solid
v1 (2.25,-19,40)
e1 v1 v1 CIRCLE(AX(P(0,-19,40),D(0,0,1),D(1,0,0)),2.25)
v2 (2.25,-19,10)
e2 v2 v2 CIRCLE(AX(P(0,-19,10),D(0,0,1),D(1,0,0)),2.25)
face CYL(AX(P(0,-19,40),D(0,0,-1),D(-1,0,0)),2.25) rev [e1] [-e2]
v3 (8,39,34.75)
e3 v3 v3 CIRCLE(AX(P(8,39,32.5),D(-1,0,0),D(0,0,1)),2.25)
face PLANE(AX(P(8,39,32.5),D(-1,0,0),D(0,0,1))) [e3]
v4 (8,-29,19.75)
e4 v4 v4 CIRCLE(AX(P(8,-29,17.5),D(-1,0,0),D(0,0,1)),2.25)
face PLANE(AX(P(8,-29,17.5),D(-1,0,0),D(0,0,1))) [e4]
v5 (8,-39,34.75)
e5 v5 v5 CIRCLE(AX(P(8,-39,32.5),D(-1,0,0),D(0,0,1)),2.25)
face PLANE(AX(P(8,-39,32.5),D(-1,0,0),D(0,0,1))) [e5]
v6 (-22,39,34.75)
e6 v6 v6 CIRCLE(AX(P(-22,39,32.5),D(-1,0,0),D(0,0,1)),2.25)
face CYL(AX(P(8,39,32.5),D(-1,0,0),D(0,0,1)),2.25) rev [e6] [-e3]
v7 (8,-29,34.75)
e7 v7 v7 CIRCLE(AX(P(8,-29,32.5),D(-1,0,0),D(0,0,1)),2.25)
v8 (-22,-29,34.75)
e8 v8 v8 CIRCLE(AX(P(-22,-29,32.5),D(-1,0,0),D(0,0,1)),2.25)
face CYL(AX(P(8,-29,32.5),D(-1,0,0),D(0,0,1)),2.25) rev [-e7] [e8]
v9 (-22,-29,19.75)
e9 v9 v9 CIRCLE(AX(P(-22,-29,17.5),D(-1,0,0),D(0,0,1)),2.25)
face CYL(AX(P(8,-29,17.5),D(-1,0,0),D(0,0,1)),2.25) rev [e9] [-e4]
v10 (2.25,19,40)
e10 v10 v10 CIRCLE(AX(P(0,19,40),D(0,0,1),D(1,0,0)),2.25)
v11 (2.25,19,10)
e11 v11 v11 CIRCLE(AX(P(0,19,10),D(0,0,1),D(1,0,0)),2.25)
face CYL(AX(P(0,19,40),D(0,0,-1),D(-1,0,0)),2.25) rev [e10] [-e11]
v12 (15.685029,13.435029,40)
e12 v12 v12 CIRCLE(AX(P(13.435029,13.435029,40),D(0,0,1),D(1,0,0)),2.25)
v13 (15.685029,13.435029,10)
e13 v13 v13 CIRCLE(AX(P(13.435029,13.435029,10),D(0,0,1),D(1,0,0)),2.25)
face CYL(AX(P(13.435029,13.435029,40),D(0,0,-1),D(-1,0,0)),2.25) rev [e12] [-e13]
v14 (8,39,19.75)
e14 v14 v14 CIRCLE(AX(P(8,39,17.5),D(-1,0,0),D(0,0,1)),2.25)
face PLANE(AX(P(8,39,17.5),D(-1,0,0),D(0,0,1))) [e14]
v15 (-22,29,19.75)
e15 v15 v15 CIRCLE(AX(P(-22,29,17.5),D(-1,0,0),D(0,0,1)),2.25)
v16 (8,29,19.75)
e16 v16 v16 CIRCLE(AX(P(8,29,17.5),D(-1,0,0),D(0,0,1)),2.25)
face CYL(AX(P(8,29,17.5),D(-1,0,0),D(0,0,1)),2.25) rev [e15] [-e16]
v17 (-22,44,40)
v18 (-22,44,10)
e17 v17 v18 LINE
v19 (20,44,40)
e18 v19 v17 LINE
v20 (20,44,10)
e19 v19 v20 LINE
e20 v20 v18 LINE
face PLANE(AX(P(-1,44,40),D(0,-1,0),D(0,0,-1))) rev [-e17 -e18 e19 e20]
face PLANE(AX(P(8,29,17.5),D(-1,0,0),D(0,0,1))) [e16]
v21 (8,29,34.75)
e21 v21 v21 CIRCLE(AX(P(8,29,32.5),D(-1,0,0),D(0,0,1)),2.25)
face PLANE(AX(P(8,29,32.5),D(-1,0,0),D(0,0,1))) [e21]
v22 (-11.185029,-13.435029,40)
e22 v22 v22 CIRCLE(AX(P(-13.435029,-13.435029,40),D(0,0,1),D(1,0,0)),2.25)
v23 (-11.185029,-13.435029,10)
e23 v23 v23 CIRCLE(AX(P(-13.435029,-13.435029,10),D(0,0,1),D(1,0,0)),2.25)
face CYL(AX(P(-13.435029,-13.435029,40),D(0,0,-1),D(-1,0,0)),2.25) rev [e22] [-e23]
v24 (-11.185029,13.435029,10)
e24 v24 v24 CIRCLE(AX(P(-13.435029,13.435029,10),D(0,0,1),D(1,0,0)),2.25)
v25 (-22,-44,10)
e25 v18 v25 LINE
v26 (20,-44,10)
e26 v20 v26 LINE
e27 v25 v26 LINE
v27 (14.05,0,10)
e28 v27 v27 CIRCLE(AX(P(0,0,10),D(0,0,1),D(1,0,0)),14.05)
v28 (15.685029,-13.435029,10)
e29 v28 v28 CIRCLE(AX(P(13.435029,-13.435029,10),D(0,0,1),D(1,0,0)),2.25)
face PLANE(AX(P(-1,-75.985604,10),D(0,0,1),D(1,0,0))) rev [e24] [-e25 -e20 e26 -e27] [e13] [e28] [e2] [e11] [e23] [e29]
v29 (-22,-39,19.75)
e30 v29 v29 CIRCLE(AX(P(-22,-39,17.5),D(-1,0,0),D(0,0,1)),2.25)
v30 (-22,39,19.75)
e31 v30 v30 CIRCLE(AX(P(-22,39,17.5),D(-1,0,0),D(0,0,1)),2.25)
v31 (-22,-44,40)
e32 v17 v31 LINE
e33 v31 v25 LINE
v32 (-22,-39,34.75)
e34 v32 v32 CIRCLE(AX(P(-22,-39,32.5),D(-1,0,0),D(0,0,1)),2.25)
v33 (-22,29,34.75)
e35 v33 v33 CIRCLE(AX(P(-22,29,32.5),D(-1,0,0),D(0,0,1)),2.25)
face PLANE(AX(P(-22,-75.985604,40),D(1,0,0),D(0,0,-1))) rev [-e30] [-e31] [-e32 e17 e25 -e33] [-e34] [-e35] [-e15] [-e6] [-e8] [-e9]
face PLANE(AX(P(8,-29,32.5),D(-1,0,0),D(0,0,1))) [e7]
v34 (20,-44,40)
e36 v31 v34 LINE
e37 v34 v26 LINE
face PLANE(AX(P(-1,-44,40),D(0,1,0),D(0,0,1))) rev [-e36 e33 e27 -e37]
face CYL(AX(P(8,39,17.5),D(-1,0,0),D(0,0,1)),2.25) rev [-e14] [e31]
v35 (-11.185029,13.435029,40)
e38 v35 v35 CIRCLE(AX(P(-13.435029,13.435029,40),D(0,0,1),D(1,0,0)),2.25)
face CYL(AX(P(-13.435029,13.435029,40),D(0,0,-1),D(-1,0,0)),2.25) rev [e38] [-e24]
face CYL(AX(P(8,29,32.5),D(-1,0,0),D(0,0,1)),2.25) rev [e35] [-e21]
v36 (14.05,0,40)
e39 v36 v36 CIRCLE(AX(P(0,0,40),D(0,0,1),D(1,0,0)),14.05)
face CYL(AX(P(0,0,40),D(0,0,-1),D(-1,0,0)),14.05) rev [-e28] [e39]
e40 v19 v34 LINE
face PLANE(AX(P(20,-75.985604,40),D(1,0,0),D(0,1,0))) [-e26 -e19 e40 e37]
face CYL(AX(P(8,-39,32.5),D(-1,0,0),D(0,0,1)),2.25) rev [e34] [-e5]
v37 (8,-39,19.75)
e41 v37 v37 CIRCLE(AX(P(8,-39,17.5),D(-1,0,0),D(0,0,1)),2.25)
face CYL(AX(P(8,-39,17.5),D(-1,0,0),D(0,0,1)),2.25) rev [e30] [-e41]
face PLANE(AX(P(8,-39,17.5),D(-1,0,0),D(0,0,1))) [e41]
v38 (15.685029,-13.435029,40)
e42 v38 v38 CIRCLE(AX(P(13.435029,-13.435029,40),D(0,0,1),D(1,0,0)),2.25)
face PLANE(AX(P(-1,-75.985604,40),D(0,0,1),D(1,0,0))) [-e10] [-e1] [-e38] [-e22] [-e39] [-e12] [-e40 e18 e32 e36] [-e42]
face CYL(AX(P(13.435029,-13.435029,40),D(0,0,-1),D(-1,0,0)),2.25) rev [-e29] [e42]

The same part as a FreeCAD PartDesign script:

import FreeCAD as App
import Part
import Sketcher
from FreeCAD import Vector
Q = App.Units.Quantity


def add_polygon(sketch, points):
    """Adds a closed chain of lines whose ends are joined by coincident constraints."""
    first, n = sketch.GeometryCount, len(points)
    for a, b in zip(points, points[1:] + points[:1]):
        sketch.addGeometry(Part.LineSegment(App.Vector(*a, 0), App.Vector(*b, 0)), False)
    for i in range(n):
        sketch.addConstraint(Sketcher.Constraint("Coincident", first + i, 2, first + (i + 1) % n, 1))

doc = App.newDocument("Part")
body = doc.addObject("PartDesign::Body", "Body")

# Sketch on XY plane
sketch1 = doc.addObject("Sketcher::SketchObject", "Sketch")
body.addObject(sketch1)
sketch1.AttachmentSupport = (doc.XY_Plane, [""])
sketch1.MapMode = "FlatFace"
sketch1.AttachmentOffset = App.Placement(Vector(0, 0, 10), App.Rotation())
add_polygon(sketch1, [(20, 44), (-22, 44), (-22, -44), (20, -44)])  # lines 0-3
sketch1.addGeometry(Part.Circle(Vector(-13.4, -13.4, 0), Vector(0, 0, 1), 2.2), False)  # 4
sketch1.addGeometry(Part.Circle(Vector(0, -19, 0), Vector(0, 0, 1), 2.2), False)  # 5
sketch1.addGeometry(Part.Circle(Vector(13.4, -13.4, 0), Vector(0, 0, 1), 2.2), False)  # 6
sketch1.addGeometry(Part.Circle(Vector(-13.4, 13.4, 0), Vector(0, 0, 1), 2.2), False)  # 7
sketch1.addGeometry(Part.Circle(Vector(0, 0, 0), Vector(0, 0, 1), 14.1), False)  # 8
sketch1.addGeometry(Part.Circle(Vector(0, 19, 0), Vector(0, 0, 1), 2.2), False)  # 9
sketch1.addGeometry(Part.Circle(Vector(13.4, 13.4, 0), Vector(0, 0, 1), 2.2), False)  # 10
sketch1.addConstraint([
    Sketcher.Constraint("Horizontal", 0),
    Sketcher.Constraint("Vertical", 1),
    Sketcher.Constraint("Horizontal", 2),
    Sketcher.Constraint("Vertical", 3),
    Sketcher.Constraint("Coincident", 8, 3, -1, 1),
    Sketcher.Constraint("Equal", 4, 5),
    Sketcher.Constraint("Equal", 5, 6),
    Sketcher.Constraint("Equal", 6, 7),
    Sketcher.Constraint("Equal", 7, 9),
    Sketcher.Constraint("Equal", 9, 10),
    Sketcher.Constraint("Symmetric", 6, 3, 7, 3, -1, 1),
    Sketcher.Constraint("Symmetric", 5, 3, 9, 3, -1, 1),
    Sketcher.Constraint("Symmetric", 4, 3, 10, 3, -1, 1),
    Sketcher.Constraint("Symmetric", 4, 3, 6, 3, -2),
    Sketcher.Constraint("PointOnObject", 5, 3, -2),
    Sketcher.Constraint("Diameter", 4, Q("4.5 mm")),
    Sketcher.Constraint("Diameter", 8, Q("28.1 mm")),
    Sketcher.Constraint("DistanceX", 0, 2, 0, 1, Q("42 mm")),
    Sketcher.Constraint("DistanceY", 1, 2, 1, 1, Q("88 mm")),
    Sketcher.Constraint("DistanceY", 5, 3, -1, 1, Q("19 mm")),
    Sketcher.Constraint("DistanceX", 0, 2, -1, 1, Q("22 mm")),
    Sketcher.Constraint("DistanceY", -1, 1, 0, 2, Q("44 mm")),
    Sketcher.Constraint("DistanceX", 4, 3, -1, 1, Q("13.435029 mm")),
    Sketcher.Constraint("DistanceY", 4, 3, -1, 1, Q("13.435029 mm")),
])
pad1 = doc.addObject("PartDesign::Pad", "Pad")
body.addObject(pad1)
pad1.Profile = sketch1
pad1.Length = 30

# Sketch on YZ plane
sketch2 = doc.addObject("Sketcher::SketchObject", "Sketch001")
body.addObject(sketch2)
sketch2.AttachmentSupport = (doc.YZ_Plane, [""])
sketch2.MapMode = "FlatFace"
sketch2.AttachmentOffset = App.Placement(Vector(0, 0, -22), App.Rotation())
sketch2.addGeometry([
    Part.Circle(Vector(39, 17.5, 0), Vector(0, 0, 1), 2.2),  # 0
    Part.Circle(Vector(39, 32.5, 0), Vector(0, 0, 1), 2.2),  # 1
    Part.Circle(Vector(-39, 17.5, 0), Vector(0, 0, 1), 2.2),  # 2
    Part.Circle(Vector(-39, 32.5, 0), Vector(0, 0, 1), 2.2),  # 3
    Part.Circle(Vector(29, 17.5, 0), Vector(0, 0, 1), 2.2),  # 4
    Part.Circle(Vector(29, 32.5, 0), Vector(0, 0, 1), 2.2),  # 5
    Part.Circle(Vector(-29, 17.5, 0), Vector(0, 0, 1), 2.2),  # 6
    Part.Circle(Vector(-29, 32.5, 0), Vector(0, 0, 1), 2.2),  # 7
], False)
sketch2.addConstraint([
    Sketcher.Constraint("Equal", 0, 1),
    Sketcher.Constraint("Equal", 1, 2),
    Sketcher.Constraint("Equal", 2, 3),
    Sketcher.Constraint("Equal", 3, 4),
    Sketcher.Constraint("Equal", 4, 5),
    Sketcher.Constraint("Equal", 5, 6),
    Sketcher.Constraint("Equal", 6, 7),
    Sketcher.Constraint("Symmetric", 0, 3, 2, 3, -2),
    Sketcher.Constraint("Symmetric", 1, 3, 3, 3, -2),
    Sketcher.Constraint("Symmetric", 4, 3, 6, 3, -2),
    Sketcher.Constraint("Symmetric", 5, 3, 7, 3, -2),
    Sketcher.Constraint("Horizontal", 2, 3, 4, 3),
    Sketcher.Constraint("Horizontal", 3, 3, 5, 3),
    Sketcher.Constraint("Vertical", 0, 3, 1, 3),
    Sketcher.Constraint("Vertical", 4, 3, 5, 3),
    Sketcher.Constraint("Diameter", 0, Q("4.5 mm")),
    Sketcher.Constraint("DistanceX", -1, 1, 0, 3, Q("39 mm")),
    Sketcher.Constraint("DistanceX", -1, 1, 4, 3, Q("29 mm")),
    Sketcher.Constraint("DistanceY", 0, 3, 1, 3, Q("15 mm")),
    Sketcher.Constraint("DistanceY", -1, 1, 0, 3, Q("17.5 mm")),
])
pocket1 = doc.addObject("PartDesign::Pocket", "Pocket")
body.addObject(pocket1)
pocket1.Profile = sketch2
pocket1.Length = 30
pocket1.Reversed = True

doc.recompute()
